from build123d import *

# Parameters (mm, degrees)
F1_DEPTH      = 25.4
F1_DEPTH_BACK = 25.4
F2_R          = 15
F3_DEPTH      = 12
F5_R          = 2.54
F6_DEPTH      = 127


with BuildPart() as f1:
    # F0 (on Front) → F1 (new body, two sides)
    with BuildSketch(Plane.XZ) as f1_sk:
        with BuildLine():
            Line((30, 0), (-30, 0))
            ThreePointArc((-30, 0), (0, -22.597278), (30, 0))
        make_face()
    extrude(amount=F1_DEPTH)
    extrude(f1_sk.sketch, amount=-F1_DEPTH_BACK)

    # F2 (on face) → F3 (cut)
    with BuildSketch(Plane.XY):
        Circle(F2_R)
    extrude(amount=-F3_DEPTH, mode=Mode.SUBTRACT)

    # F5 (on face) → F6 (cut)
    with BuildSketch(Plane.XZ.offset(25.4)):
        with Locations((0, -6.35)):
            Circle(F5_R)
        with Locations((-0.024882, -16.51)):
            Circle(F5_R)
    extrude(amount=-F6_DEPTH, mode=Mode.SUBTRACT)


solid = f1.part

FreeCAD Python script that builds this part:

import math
import FreeCAD as App
import Part
import Sketcher
from FreeCAD import Vector

doc = App.newDocument("Part")
params = doc.addObject("Spreadsheet::Sheet", "Params")
for row, (alias, value) in enumerate([
    ("sketch1_width", "60 mm"),
    ("pad1_length", "25.4 mm"),
    ("pad1_length2", "25.4 mm"),
    ("sketch2_diameter", "30 mm"),
    ("pocket1_length", "12 mm"),
    ("sketch3_diameter", "5.08 mm"),
    ("pocket2_length", "127 mm"),
], start=1):
    params.set(f"A{row}", alias)
    params.set(f"B{row}", "=" + value)
    params.setAlias(f"B{row}", alias)

body = doc.addObject("PartDesign::Body", "Body")

# Sketch on XZ plane
sketch1 = doc.addObject("Sketcher::SketchObject", "Sketch")
body.addObject(sketch1)
sketch1.AttachmentSupport = (doc.XZ_Plane, [""])
sketch1.MapMode = "FlatFace"
sketch1.addGeometry(Part.LineSegment(Vector(30, 0, 0), Vector(-30, 0, 0)), False)
sketch1.addGeometry(Part.ArcOfCircle(Part.Circle(Vector(0, 9, 0), Vector(0, 0, 1), 31), math.radians(-164), math.radians(-16)), False)
sketch1.addConstraint(Sketcher.Constraint("Coincident", 0, 1, 1, 2))
sketch1.addConstraint(Sketcher.Constraint("Coincident", 1, 1, 0, 2))
sketch1.addConstraint(Sketcher.Constraint("Horizontal", 0))
sketch1.addConstraint(Sketcher.Constraint("Symmetric", 0, 1, 1, 1, -1, 1))
sketch1.addConstraint(Sketcher.Constraint("DistanceX", 0, 2, 0, 1, 60.0))
sketch1.addConstraint(Sketcher.Constraint("Radius", 1, 31.212542))
sketch1.setExpression("Constraints[4]", "Params.sketch1_width")
pad1 = doc.addObject("PartDesign::Pad", "Pad")
body.addObject(pad1)
pad1.Profile = sketch1
pad1.Type = "TwoLengths"
pad1.setExpression("Length", "Params.pad1_length")
pad1.setExpression("Length2", "Params.pad1_length2")

# Sketch on XY plane
sketch2 = doc.addObject("Sketcher::SketchObject", "Sketch001")
body.addObject(sketch2)
sketch2.AttachmentSupport = (doc.XY_Plane, [""])
sketch2.MapMode = "FlatFace"
sketch2.addGeometry(Part.Circle(Vector(0, 0, 0), Vector(0, 0, 1), 15), False)
sketch2.addConstraint(Sketcher.Constraint("Coincident", 0, 3, -1, 1))
sketch2.addConstraint(Sketcher.Constraint("Diameter", 0, 30.0))
sketch2.setExpression("Constraints[1]", "Params.sketch2_diameter")
pocket1 = doc.addObject("PartDesign::Pocket", "Pocket")
body.addObject(pocket1)
pocket1.Profile = sketch2
pocket1.setExpression("Length", "Params.pocket1_length")

# Sketch on XZ plane
sketch3 = doc.addObject("Sketcher::SketchObject", "Sketch002")
body.addObject(sketch3)
sketch3.AttachmentSupport = (doc.XZ_Plane, [""])
sketch3.MapMode = "FlatFace"
sketch3.AttachmentOffset = App.Placement(Vector(0, 0, 25.4), App.Rotation())
sketch3.addGeometry(Part.Circle(Vector(0, -6.3, 0), Vector(0, 0, 1), 2.5), False)
sketch3.addGeometry(Part.Circle(Vector(0, -16.5, 0), Vector(0, 0, 1), 2.5), False)
sketch3.addConstraint(Sketcher.Constraint("Equal", 0, 1))
sketch3.addConstraint(Sketcher.Constraint("PointOnObject", 0, 3, -2))
sketch3.addConstraint(Sketcher.Constraint("Diameter", 0, 5.08))
sketch3.addConstraint(Sketcher.Constraint("DistanceY", 0, 3, -1, 1, 6.35))
sketch3.addConstraint(Sketcher.Constraint("DistanceY", 1, 3, -1, 1, 16.51))
sketch3.addConstraint(Sketcher.Constraint("DistanceX", 1, 3, -1, 1, 0.024882))
sketch3.setExpression("Constraints[2]", "Params.sketch3_diameter")
pocket2 = doc.addObject("PartDesign::Pocket", "Pocket001")
body.addObject(pocket2)
pocket2.Profile = sketch3
pocket2.setExpression("Length", "Params.pocket2_length")

doc.recompute()
